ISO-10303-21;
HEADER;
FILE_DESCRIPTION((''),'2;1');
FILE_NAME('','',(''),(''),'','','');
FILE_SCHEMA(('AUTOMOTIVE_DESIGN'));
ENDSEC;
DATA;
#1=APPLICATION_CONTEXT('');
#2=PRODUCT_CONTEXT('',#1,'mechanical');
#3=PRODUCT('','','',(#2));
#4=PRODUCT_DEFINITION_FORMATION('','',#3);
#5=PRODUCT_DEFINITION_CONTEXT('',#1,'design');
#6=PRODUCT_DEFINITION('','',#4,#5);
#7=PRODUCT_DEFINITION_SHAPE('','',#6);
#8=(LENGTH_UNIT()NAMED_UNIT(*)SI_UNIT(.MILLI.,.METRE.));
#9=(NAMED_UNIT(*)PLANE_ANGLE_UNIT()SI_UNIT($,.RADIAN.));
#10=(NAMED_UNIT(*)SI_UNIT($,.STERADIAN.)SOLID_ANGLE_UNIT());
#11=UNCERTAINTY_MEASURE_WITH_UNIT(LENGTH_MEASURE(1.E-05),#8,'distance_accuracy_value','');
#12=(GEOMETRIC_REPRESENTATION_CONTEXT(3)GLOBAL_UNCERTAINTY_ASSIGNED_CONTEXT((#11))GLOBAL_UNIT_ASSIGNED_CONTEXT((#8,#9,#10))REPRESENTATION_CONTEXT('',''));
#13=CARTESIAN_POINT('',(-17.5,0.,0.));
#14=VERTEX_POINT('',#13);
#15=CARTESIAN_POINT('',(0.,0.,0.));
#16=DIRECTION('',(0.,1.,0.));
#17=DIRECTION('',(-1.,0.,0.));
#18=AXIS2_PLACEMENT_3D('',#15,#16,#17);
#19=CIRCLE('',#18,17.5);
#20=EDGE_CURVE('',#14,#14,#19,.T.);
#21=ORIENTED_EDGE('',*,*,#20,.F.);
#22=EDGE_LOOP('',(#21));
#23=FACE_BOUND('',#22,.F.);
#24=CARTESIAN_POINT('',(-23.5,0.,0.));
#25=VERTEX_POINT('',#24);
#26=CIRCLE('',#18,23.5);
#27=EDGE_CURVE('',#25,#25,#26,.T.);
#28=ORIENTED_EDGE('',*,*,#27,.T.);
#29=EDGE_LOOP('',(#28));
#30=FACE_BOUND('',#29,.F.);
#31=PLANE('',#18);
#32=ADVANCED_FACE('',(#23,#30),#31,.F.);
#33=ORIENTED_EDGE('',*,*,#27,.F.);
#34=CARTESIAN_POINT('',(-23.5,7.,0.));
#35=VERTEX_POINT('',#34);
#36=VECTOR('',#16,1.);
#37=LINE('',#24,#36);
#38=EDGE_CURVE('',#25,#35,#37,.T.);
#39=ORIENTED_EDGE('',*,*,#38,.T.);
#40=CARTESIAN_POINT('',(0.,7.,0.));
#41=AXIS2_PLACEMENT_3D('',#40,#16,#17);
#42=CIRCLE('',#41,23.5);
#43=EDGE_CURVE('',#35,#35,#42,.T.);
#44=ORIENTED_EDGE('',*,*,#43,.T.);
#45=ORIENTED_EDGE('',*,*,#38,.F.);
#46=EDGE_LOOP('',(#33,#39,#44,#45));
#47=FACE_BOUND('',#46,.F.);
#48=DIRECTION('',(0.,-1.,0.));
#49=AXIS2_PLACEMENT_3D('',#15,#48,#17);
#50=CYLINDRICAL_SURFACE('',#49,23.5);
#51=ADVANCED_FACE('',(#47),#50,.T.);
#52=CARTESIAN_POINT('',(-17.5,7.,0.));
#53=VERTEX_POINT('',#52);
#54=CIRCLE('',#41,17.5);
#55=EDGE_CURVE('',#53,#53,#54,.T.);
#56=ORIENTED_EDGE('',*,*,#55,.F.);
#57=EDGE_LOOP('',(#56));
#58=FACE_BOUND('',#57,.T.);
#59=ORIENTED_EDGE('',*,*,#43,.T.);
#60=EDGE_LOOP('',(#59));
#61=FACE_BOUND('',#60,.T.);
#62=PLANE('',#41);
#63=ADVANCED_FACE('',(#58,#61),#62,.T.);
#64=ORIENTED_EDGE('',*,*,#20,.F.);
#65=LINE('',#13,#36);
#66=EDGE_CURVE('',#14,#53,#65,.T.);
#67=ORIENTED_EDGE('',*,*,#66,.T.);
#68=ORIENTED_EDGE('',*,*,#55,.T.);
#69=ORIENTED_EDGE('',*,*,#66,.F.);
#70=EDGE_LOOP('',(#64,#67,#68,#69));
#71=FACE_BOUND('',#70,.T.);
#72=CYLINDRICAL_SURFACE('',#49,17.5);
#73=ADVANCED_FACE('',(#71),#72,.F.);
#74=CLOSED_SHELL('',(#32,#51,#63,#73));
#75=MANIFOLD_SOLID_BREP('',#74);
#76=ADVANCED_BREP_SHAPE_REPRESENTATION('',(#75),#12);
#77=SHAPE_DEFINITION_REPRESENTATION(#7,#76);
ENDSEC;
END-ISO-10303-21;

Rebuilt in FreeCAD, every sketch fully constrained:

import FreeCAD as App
import Part
import Sketcher
from FreeCAD import Vector

doc = App.newDocument("Part")
body = doc.addObject("PartDesign::Body", "Body")

# Sketch on XZ plane
sketch1 = doc.addObject("Sketcher::SketchObject", "Sketch")
body.addObject(sketch1)
sketch1.AttachmentSupport = (doc.XZ_Plane, [""])
sketch1.MapMode = "FlatFace"
sketch1.addGeometry([
    Part.Circle(Vector(0, 0, 0), Vector(0, 0, 1), 24),
    Part.Circle(Vector(0, 0, 0), Vector(0, 0, 1), 18),
], False)
sketch1.addConstraint([
    Sketcher.Constraint("Coincident", 0, 3, -1, 1),
    Sketcher.Constraint("Coincident", 1, 3, -1, 1),
    Sketcher.Constraint("Diameter", 0, 47.0),
    Sketcher.Constraint("Diameter", 1, 35.0),
])
pad1 = doc.addObject("PartDesign::Pad", "Pad")
body.addObject(pad1)
pad1.Profile = sketch1
pad1.Length = 7
pad1.Reversed = True

doc.recompute()
